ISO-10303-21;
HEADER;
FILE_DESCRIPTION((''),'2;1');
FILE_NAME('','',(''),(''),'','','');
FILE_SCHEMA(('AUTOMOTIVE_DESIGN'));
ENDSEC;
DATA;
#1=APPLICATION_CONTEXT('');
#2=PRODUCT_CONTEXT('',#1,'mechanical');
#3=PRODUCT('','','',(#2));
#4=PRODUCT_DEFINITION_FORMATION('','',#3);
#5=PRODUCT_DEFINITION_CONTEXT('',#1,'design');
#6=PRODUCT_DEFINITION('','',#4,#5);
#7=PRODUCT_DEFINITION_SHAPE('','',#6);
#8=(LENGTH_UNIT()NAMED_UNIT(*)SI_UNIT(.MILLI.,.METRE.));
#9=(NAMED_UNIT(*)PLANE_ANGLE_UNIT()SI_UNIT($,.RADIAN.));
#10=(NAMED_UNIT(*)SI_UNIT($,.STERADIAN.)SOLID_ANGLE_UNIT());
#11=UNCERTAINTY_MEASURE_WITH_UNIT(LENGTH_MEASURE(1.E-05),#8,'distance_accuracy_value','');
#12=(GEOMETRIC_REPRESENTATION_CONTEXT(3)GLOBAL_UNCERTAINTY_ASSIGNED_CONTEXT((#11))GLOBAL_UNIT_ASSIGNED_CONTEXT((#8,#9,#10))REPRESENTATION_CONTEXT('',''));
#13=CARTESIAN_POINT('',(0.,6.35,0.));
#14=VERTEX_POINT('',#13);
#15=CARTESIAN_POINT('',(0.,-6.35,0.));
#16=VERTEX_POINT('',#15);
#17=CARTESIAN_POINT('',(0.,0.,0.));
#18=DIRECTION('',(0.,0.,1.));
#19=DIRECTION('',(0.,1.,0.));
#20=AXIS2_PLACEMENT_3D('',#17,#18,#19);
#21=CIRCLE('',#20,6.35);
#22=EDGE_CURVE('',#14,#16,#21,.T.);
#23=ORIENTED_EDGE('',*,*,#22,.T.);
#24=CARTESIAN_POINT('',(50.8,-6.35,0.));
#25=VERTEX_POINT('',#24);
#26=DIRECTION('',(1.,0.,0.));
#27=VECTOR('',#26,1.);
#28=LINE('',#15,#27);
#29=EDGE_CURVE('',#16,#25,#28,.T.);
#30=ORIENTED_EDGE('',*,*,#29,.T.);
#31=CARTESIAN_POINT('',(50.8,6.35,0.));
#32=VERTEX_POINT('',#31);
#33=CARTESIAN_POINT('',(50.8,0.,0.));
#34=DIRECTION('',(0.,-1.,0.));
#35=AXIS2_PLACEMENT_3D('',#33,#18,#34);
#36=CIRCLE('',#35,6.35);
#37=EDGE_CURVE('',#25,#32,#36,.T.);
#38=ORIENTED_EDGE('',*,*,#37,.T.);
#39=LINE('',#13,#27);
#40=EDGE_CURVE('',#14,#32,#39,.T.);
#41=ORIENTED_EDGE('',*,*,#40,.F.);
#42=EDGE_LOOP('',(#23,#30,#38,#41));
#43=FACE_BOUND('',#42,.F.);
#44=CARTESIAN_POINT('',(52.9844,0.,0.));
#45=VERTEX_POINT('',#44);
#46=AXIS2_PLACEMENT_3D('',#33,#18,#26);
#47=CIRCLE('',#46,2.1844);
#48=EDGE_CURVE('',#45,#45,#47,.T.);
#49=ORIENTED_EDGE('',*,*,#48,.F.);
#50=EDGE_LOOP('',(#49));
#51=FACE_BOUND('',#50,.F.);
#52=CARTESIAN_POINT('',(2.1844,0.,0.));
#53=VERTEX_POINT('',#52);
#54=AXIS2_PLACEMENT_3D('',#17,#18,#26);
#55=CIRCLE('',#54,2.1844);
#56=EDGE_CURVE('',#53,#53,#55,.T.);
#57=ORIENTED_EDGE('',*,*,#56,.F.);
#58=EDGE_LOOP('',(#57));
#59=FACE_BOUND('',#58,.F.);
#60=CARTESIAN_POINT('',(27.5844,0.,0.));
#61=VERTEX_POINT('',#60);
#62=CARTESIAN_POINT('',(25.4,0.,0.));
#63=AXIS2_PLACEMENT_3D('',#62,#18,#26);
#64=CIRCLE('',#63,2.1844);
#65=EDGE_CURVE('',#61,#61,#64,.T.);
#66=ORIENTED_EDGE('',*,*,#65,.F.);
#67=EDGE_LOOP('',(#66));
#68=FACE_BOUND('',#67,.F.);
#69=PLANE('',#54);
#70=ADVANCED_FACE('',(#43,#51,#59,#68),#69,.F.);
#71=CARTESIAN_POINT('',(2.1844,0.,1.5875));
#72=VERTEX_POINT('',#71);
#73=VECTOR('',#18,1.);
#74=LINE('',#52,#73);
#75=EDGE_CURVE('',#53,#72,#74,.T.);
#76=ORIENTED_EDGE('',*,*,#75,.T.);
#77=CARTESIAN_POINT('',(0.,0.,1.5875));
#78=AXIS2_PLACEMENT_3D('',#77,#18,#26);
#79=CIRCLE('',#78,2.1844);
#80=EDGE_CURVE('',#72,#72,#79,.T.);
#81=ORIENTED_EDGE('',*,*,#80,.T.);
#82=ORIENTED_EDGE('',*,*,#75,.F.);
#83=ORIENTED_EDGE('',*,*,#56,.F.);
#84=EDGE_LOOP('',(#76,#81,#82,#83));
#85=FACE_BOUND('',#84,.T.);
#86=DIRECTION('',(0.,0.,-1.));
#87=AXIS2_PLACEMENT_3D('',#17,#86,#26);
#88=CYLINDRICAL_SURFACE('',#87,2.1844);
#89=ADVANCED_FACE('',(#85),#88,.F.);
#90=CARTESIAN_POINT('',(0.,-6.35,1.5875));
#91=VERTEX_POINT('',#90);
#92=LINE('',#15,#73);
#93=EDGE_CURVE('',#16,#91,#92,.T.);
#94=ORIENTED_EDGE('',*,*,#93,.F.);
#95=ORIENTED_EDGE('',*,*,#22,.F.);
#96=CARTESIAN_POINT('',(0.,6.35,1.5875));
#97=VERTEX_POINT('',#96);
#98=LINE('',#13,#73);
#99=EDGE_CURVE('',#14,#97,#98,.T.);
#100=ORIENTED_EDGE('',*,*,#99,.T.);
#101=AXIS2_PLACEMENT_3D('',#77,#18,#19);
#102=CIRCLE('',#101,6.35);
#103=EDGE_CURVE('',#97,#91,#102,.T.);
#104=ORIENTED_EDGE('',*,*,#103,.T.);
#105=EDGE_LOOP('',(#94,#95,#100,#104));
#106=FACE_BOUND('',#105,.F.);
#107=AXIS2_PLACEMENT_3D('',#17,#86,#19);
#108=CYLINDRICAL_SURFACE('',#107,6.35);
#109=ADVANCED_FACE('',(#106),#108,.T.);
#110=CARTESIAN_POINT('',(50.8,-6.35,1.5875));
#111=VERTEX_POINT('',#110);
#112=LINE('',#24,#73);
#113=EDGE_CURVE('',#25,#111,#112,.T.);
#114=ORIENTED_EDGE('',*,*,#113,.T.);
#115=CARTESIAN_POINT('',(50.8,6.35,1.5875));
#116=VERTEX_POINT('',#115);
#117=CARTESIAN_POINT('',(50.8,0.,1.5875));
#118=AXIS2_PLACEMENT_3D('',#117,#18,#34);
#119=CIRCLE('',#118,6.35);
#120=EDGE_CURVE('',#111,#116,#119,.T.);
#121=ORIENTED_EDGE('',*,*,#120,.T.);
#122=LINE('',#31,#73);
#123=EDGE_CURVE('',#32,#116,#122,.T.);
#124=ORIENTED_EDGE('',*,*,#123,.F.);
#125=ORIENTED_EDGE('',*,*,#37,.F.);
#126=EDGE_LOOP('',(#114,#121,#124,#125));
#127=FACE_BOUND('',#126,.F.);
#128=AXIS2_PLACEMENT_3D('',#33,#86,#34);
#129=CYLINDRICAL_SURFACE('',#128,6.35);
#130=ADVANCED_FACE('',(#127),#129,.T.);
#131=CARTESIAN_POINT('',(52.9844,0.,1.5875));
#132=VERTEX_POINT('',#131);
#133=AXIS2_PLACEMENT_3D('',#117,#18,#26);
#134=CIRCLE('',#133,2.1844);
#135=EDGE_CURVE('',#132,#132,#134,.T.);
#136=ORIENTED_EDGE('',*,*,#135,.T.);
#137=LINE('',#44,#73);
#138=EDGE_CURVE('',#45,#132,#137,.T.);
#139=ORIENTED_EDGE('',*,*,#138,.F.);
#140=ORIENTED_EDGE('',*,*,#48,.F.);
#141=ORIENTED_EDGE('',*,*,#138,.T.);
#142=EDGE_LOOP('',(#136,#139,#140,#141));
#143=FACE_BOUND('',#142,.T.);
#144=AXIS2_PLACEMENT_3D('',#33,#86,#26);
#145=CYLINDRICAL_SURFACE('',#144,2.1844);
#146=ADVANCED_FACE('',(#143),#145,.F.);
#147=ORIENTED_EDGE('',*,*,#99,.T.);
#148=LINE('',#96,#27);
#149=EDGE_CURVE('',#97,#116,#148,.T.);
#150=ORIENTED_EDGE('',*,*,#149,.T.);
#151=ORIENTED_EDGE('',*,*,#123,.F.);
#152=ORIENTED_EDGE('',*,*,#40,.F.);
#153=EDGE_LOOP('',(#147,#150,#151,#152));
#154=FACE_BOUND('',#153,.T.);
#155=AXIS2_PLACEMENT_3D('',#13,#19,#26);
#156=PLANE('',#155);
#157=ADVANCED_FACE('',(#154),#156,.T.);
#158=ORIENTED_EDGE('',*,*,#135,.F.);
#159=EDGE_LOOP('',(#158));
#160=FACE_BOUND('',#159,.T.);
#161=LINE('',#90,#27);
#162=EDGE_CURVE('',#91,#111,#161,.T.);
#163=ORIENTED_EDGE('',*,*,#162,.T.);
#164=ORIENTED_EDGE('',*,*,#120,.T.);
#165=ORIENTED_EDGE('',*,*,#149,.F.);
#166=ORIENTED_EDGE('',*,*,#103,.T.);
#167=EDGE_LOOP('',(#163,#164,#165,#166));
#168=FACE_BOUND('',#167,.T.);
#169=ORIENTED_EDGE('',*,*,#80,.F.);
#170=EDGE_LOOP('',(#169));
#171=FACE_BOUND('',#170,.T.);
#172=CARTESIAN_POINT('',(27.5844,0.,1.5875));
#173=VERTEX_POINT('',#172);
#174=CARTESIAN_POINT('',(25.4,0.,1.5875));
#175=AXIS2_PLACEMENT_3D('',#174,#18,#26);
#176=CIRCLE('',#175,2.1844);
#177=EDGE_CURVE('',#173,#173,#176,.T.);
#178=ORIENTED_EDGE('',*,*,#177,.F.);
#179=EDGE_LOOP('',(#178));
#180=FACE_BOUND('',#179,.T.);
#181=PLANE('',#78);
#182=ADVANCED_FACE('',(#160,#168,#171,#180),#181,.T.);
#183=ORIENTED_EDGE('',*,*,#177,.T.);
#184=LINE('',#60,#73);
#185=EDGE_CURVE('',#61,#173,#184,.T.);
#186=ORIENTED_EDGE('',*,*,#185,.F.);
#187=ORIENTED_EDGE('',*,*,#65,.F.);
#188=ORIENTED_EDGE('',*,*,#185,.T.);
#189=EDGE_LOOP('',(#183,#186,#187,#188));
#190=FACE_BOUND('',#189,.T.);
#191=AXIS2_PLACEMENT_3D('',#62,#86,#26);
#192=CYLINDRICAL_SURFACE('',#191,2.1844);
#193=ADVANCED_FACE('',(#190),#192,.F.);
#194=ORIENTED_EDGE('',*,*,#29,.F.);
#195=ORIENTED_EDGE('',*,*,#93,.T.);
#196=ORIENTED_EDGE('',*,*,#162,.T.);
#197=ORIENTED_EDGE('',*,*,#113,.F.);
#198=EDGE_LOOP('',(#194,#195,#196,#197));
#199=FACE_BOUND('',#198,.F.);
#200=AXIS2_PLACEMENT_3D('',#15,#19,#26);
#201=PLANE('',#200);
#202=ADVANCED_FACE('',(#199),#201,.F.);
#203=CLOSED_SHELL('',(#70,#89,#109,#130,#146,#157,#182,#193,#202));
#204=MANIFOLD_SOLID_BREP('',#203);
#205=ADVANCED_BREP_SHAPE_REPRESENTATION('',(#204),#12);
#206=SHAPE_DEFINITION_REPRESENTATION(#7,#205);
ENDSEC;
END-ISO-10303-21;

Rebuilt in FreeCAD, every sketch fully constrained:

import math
import FreeCAD as App
import Part
import Sketcher
Q = App.Units.Quantity

doc = App.newDocument("Part")
params = doc.addObject("Spreadsheet::Sheet", "Params")
for row, (alias, value) in enumerate([
    ("sketch1_diameter", "0.172 in"),
    ("sketch1_radius", "0.25 in"),
    ("pad1_length", "0.0625 in"),
], start=1):
    params.set(f"A{row}", alias)
    params.set(f"B{row}", "=" + value)
    params.setAlias(f"B{row}", alias)

body = doc.addObject("PartDesign::Body", "Body")

# Sketch on XY plane
sketch1 = doc.addObject("Sketcher::SketchObject", "Sketch")
body.addObject(sketch1)
sketch1.AttachmentSupport = (doc.XY_Plane, [""])
sketch1.MapMode = "FlatFace"
sketch1.addGeometry(Part.LineSegment(App.Vector(50.8, 6.35, 0), App.Vector(0, 6.35, 0)), False)
sketch1.addGeometry(Part.ArcOfCircle(Part.Circle(App.Vector(0, 0, 0), App.Vector(0, 0, 1), 6.35), math.radians(90), math.radians(270)), False)
sketch1.addGeometry(Part.LineSegment(App.Vector(0, -6.35, 0), App.Vector(50.8, -6.35, 0)), False)
sketch1.addGeometry(Part.ArcOfCircle(Part.Circle(App.Vector(50.8, 0, 0), App.Vector(0, 0, 1), 6.35), math.radians(-90), math.radians(90)), False)
sketch1.addGeometry(Part.Circle(App.Vector(0, 0, 0), App.Vector(0, 0, 1), 2.1844), False)
sketch1.addGeometry(Part.Circle(App.Vector(25.4, 0, 0), App.Vector(0, 0, 1), 2.1844), False)
sketch1.addGeometry(Part.Circle(App.Vector(50.8, 0, 0), App.Vector(0, 0, 1), 2.1844), False)
sketch1.addConstraint(Sketcher.Constraint("Tangent", 0, 2, 1, 1))
sketch1.addConstraint(Sketcher.Constraint("Tangent", 1, 2, 2, 1))
sketch1.addConstraint(Sketcher.Constraint("Tangent", 2, 2, 3, 1))
sketch1.addConstraint(Sketcher.Constraint("Tangent", 3, 2, 0, 1))
sketch1.addConstraint(Sketcher.Constraint("Horizontal", 0))
sketch1.addConstraint(Sketcher.Constraint("Horizontal", 2))
sketch1.addConstraint(Sketcher.Constraint("Coincident", 1, 3, -1, 1))
sketch1.addConstraint(Sketcher.Constraint("Coincident", 4, 3, -1, 1))
sketch1.addConstraint(Sketcher.Constraint("Coincident", 6, 3, 3, 3))
sketch1.addConstraint(Sketcher.Constraint("Equal", 4, 5))
sketch1.addConstraint(Sketcher.Constraint("Equal", 5, 6))
sketch1.addConstraint(Sketcher.Constraint("PointOnObject", 5, 3, -1))
sketch1.addConstraint(Sketcher.Constraint("Diameter", 4, Q("0.172 in")))
sketch1.addConstraint(Sketcher.Constraint("DistanceX", -1, 1, 5, 3, Q("1 in")))
sketch1.addConstraint(Sketcher.Constraint("DistanceX", 5, 3, 3, 3, Q("1 in")))
sketch1.addConstraint(Sketcher.Constraint("Radius", 1, Q("0.25 in")))
sketch1.setExpression("Constraints[12]", "Params.sketch1_diameter")
sketch1.setExpression("Constraints[15]", "Params.sketch1_radius")
pad1 = doc.addObject("PartDesign::Pad", "Pad")
body.addObject(pad1)
pad1.Profile = sketch1
pad1.setExpression("Length", "Params.pad1_length")

doc.recompute()
